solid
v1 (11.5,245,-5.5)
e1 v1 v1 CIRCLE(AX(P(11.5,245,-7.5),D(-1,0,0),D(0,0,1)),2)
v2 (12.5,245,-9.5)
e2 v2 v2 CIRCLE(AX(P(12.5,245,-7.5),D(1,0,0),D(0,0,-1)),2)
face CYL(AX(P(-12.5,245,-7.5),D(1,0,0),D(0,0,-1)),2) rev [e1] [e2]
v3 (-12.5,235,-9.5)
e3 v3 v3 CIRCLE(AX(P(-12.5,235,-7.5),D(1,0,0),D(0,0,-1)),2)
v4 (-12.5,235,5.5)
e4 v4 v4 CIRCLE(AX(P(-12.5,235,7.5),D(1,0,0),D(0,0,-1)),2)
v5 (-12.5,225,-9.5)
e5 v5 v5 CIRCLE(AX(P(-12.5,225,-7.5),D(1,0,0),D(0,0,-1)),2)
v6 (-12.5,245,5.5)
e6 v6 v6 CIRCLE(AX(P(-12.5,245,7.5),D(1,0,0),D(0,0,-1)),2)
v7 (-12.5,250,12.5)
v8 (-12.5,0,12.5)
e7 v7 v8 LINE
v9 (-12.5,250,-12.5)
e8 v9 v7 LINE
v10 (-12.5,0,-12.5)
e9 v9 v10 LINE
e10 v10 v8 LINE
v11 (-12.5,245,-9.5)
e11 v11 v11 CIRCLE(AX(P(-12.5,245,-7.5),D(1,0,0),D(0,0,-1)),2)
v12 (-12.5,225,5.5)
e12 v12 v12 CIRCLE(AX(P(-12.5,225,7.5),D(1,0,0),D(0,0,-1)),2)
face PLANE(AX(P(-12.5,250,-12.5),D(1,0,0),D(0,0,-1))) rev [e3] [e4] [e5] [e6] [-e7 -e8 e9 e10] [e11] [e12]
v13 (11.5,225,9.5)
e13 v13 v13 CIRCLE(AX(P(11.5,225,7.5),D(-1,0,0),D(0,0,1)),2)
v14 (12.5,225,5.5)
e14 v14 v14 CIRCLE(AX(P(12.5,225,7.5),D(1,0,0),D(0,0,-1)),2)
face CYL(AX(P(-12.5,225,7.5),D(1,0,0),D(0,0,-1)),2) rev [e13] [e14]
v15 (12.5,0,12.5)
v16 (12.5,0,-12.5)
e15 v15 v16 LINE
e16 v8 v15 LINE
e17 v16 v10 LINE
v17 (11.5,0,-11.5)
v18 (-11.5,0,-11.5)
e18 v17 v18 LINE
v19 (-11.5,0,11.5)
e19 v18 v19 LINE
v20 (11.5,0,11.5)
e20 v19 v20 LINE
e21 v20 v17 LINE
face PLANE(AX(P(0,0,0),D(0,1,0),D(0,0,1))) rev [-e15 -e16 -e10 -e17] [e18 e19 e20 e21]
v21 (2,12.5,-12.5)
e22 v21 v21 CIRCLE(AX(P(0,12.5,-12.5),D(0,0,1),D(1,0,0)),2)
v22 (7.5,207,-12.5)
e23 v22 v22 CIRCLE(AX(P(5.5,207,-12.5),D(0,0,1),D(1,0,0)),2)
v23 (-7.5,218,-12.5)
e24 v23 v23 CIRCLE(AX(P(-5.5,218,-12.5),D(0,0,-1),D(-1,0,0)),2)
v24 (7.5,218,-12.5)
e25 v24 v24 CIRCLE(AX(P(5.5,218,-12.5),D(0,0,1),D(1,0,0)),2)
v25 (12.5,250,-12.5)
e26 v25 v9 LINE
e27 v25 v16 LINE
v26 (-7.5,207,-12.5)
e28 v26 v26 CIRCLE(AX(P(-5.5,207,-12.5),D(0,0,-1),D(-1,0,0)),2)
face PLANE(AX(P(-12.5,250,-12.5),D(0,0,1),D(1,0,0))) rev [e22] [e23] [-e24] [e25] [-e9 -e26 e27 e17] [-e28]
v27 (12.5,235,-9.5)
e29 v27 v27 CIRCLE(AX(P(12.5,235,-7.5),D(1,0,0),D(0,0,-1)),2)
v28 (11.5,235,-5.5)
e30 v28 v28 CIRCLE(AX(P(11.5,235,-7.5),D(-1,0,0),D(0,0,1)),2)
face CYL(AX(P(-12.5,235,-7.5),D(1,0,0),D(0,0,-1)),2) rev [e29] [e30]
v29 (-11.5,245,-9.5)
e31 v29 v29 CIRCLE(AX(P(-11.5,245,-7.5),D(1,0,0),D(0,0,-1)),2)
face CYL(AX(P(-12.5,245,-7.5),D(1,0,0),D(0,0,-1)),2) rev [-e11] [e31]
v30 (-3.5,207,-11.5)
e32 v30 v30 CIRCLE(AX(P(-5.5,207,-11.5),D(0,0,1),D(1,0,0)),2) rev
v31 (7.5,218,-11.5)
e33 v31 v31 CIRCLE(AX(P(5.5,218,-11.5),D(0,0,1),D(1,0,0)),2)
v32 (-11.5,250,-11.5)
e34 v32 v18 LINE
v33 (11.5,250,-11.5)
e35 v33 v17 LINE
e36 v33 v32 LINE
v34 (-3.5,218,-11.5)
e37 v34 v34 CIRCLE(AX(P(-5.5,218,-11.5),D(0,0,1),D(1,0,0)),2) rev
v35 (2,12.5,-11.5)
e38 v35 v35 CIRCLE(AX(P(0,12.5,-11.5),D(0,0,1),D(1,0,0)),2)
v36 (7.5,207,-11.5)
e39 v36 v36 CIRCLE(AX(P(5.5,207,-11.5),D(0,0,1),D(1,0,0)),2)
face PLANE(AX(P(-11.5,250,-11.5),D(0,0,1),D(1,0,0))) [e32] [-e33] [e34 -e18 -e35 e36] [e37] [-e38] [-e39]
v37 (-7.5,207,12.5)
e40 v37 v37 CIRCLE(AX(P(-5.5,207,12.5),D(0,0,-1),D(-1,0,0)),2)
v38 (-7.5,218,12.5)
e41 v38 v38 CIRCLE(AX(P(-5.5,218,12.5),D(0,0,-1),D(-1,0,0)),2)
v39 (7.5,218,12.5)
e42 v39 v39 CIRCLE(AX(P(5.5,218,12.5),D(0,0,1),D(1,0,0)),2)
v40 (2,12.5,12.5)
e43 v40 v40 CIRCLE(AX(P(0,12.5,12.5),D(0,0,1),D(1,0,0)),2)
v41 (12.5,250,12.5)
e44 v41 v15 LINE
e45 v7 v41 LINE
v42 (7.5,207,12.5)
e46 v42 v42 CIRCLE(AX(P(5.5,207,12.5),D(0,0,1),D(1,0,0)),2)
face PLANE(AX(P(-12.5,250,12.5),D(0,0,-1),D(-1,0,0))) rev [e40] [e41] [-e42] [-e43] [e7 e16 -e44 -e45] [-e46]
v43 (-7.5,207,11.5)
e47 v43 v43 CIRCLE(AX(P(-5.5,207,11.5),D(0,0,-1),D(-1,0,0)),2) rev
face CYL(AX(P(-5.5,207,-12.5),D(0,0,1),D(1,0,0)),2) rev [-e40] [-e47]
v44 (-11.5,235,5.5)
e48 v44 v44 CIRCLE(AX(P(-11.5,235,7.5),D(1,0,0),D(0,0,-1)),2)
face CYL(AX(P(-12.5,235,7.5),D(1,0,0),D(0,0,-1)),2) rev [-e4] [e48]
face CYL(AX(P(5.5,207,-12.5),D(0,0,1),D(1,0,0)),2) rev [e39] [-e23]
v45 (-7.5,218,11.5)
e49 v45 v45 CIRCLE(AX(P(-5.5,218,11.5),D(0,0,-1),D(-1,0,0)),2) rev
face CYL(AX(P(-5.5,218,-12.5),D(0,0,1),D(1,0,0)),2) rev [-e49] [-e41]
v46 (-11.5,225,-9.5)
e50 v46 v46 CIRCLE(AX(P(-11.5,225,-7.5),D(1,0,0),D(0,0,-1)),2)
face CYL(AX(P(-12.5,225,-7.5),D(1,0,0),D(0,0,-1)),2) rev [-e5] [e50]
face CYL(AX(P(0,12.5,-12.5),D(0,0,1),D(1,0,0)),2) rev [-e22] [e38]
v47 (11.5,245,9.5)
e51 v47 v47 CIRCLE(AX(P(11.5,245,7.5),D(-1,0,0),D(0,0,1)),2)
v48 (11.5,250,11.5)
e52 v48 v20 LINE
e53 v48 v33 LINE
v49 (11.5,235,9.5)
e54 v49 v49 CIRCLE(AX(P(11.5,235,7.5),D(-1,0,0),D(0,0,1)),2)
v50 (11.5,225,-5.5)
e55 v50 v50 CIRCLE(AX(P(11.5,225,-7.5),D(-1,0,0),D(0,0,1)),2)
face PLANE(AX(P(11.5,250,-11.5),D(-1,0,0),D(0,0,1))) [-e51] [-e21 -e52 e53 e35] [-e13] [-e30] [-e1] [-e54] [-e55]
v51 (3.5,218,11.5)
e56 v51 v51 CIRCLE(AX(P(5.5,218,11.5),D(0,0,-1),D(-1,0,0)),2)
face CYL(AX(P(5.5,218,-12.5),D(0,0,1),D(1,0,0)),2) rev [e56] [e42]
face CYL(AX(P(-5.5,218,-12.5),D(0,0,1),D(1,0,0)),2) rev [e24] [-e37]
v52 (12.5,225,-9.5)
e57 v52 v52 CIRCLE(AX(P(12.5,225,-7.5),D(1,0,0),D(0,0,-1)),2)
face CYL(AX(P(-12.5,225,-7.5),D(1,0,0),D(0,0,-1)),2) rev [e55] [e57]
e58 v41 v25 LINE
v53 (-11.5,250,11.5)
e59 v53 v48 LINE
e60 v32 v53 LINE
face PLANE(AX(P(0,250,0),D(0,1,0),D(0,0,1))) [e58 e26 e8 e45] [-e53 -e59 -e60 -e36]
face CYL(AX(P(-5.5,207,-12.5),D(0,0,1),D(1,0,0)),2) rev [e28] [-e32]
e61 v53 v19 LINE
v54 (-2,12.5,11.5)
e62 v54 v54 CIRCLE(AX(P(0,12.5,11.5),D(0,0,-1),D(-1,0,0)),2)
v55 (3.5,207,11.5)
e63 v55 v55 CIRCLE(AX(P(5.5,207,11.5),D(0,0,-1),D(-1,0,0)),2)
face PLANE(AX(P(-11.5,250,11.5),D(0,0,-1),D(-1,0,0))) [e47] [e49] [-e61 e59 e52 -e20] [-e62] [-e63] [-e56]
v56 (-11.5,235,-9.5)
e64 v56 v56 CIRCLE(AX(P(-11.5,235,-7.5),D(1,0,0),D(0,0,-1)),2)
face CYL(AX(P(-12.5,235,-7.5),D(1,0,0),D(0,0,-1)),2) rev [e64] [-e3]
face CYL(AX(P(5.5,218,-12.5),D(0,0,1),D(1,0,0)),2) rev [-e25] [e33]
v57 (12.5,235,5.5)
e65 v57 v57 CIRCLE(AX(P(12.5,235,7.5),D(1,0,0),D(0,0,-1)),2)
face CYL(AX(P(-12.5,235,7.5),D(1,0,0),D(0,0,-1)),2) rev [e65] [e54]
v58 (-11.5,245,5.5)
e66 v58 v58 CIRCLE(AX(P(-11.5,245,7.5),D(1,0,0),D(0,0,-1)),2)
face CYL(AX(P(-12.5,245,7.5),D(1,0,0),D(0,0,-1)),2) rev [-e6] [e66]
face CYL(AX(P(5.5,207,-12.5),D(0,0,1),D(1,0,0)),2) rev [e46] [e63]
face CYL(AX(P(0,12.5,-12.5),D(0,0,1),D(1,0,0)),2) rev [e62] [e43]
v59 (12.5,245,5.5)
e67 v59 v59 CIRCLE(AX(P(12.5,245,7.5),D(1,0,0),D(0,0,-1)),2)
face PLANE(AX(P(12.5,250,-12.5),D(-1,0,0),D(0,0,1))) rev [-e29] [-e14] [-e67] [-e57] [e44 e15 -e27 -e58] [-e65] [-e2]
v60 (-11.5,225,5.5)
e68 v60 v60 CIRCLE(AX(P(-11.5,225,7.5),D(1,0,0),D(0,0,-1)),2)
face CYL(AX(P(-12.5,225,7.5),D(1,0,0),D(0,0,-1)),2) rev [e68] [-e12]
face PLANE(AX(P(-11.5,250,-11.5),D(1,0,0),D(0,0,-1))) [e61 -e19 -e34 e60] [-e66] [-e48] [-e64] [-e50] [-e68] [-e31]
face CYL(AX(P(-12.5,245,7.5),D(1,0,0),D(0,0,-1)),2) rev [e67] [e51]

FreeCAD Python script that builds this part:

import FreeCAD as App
import Part
import Sketcher
from FreeCAD import Vector


def add_polygon(sketch, points):
    """Adds a closed chain of lines whose ends are joined by coincident constraints."""
    first, n = sketch.GeometryCount, len(points)
    for a, b in zip(points, points[1:] + points[:1]):
        sketch.addGeometry(Part.LineSegment(App.Vector(*a, 0), App.Vector(*b, 0)), False)
    for i in range(n):
        sketch.addConstraint(Sketcher.Constraint("Coincident", first + i, 2, first + (i + 1) % n, 1))

doc = App.newDocument("Part")
params = doc.addObject("Spreadsheet::Sheet", "Params")
for row, (alias, value) in enumerate([
    ("sketch1_width", "25 mm"),
    ("sketch1_width2", "23 mm"),
    ("pad1_length", "250 mm"),
    ("sketch2_diameter", "4 mm"),
    ("pocket1_length", "25 mm"),
    ("sketch3_diameter", "4 mm"),
    ("pocket2_length", "25 mm"),
    ("sketch4_diameter", "4 mm"),
    ("pocket3_length", "25 mm"),
], start=1):
    params.set(f"A{row}", alias)
    params.set(f"B{row}", "=" + value)
    params.setAlias(f"B{row}", alias)

body = doc.addObject("PartDesign::Body", "Body")

sketch1 = doc.addObject("Sketcher::SketchObject", "Sketch")
body.addObject(sketch1)
sketch1.AttachmentSupport = (doc.XZ_Plane, [""])
sketch1.MapMode = "FlatFace"
add_polygon(sketch1, [(-12, -12), (-12, 12), (12, 12), (12, -12)])
add_polygon(sketch1, [(12, 12), (-12, 12), (-12, -12), (12, -12)])
sketch1.addConstraint(Sketcher.Constraint("Vertical", 0))
sketch1.addConstraint(Sketcher.Constraint("Horizontal", 1))
sketch1.addConstraint(Sketcher.Constraint("Vertical", 2))
sketch1.addConstraint(Sketcher.Constraint("Horizontal", 3))
sketch1.addConstraint(Sketcher.Constraint("Horizontal", 4))
sketch1.addConstraint(Sketcher.Constraint("Vertical", 5))
sketch1.addConstraint(Sketcher.Constraint("Horizontal", 6))
sketch1.addConstraint(Sketcher.Constraint("Vertical", 7))
sketch1.addConstraint(Sketcher.Constraint("Symmetric", 0, 2, 2, 2, -1, 1))
sketch1.addConstraint(Sketcher.Constraint("Symmetric", 4, 2, 6, 2, -1, 1))
sketch1.addConstraint(Sketcher.Constraint("Equal", 3, 0))
sketch1.addConstraint(Sketcher.Constraint("Equal", 6, 5))
sketch1.addConstraint(Sketcher.Constraint("DistanceX", 1, 1, 1, 2, 25.0))
sketch1.addConstraint(Sketcher.Constraint("DistanceX", 4, 2, 4, 1, 23.0))
sketch1.setExpression("Constraints[20]", "Params.sketch1_width")
sketch1.setExpression("Constraints[21]", "Params.sketch1_width2")
pad1 = doc.addObject("PartDesign::Pad", "Pad")
body.addObject(pad1)
pad1.Profile = sketch1
pad1.setExpression("Length", "Params.pad1_length")
pad1.Reversed = True

sketch2 = doc.addObject("Sketcher::SketchObject", "Sketch001")
body.addObject(sketch2)
sketch2.AttachmentSupport = (doc.YZ_Plane, [""])
sketch2.MapMode = "FlatFace"
sketch2.AttachmentOffset = App.Placement(Vector(0, 0, 12.5), App.Rotation())
sketch2.addGeometry(Part.Circle(Vector(245, -7.5, 0), Vector(0, 0, 1), 2), False)
sketch2.addGeometry(Part.Circle(Vector(235, -7.5, 0), Vector(0, 0, 1), 2), False)
sketch2.addGeometry(Part.Circle(Vector(245, 7.5, 0), Vector(0, 0, 1), 2), False)
sketch2.addGeometry(Part.Circle(Vector(235, 7.5, 0), Vector(0, 0, 1), 2), False)
sketch2.addGeometry(Part.Circle(Vector(225, -7.5, 0), Vector(0, 0, 1), 2), False)
sketch2.addGeometry(Part.Circle(Vector(225, 7.5, 0), Vector(0, 0, 1), 2), False)
sketch2.addConstraint(Sketcher.Constraint("Equal", 0, 1))
sketch2.addConstraint(Sketcher.Constraint("Equal", 1, 2))
sketch2.addConstraint(Sketcher.Constraint("Equal", 2, 3))
sketch2.addConstraint(Sketcher.Constraint("Equal", 3, 4))
sketch2.addConstraint(Sketcher.Constraint("Equal", 4, 5))
sketch2.addConstraint(Sketcher.Constraint("Symmetric", 0, 3, 2, 3, -1))
sketch2.addConstraint(Sketcher.Constraint("Symmetric", 1, 3, 3, 3, -1))
sketch2.addConstraint(Sketcher.Constraint("Symmetric", 4, 3, 5, 3, -1))
sketch2.addConstraint(Sketcher.Constraint("Horizontal", 0, 3, 1, 3))
sketch2.addConstraint(Sketcher.Constraint("Horizontal", 1, 3, 4, 3))
sketch2.addConstraint(Sketcher.Constraint("Diameter", 0, 4.0))
sketch2.addConstraint(Sketcher.Constraint("DistanceX", -1, 1, 0, 3, 245.0))
sketch2.addConstraint(Sketcher.Constraint("DistanceX", -1, 1, 1, 3, 235.0))
sketch2.addConstraint(Sketcher.Constraint("DistanceX", -1, 1, 4, 3, 225.0))
sketch2.addConstraint(Sketcher.Constraint("DistanceY", 0, 3, 2, 3, 15.0))
sketch2.setExpression("Constraints[10]", "Params.sketch2_diameter")
pocket1 = doc.addObject("PartDesign::Pocket", "Pocket")
body.addObject(pocket1)
pocket1.Profile = sketch2
pocket1.setExpression("Length", "Params.pocket1_length")

sketch3 = doc.addObject("Sketcher::SketchObject", "Sketch002")
body.addObject(sketch3)
sketch3.AttachmentSupport = (doc.XY_Plane, [""])
sketch3.MapMode = "FlatFace"
sketch3.AttachmentOffset = App.Placement(Vector(0, 0, 12.5), App.Rotation())
sketch3.addGeometry(Part.Circle(Vector(5.5, 218, 0), Vector(0, 0, 1), 2), False)
sketch3.addGeometry(Part.Circle(Vector(5.5, 207, 0), Vector(0, 0, 1), 2), False)
sketch3.addConstraint(Sketcher.Constraint("Equal", 0, 1))
sketch3.addConstraint(Sketcher.Constraint("Vertical", 0, 3, 1, 3))
sketch3.addConstraint(Sketcher.Constraint("Diameter", 0, 4.0))
sketch3.addConstraint(Sketcher.Constraint("DistanceY", -1, 1, 0, 3, 218.0))
sketch3.addConstraint(Sketcher.Constraint("DistanceY", -1, 1, 1, 3, 207.0))
sketch3.addConstraint(Sketcher.Constraint("DistanceX", -1, 1, 0, 3, 5.5))
sketch3.setExpression("Constraints[2]", "Params.sketch3_diameter")
pocket2 = doc.addObject("PartDesign::Pocket", "Pocket001")
body.addObject(pocket2)
pocket2.Profile = sketch3
pocket2.setExpression("Length", "Params.pocket2_length")

sketch4 = doc.addObject("Sketcher::SketchObject", "Sketch003")
body.addObject(sketch4)
sketch4.AttachmentSupport = (doc.XY_Plane, [""])
sketch4.MapMode = "FlatFace"
sketch4.AttachmentOffset = App.Placement(Vector(0, 0, 12.5), App.Rotation())
sketch4.addGeometry(Part.Circle(Vector(0, 12.5, 0), Vector(0, 0, 1), 2), False)
sketch4.addConstraint(Sketcher.Constraint("PointOnObject", 0, 3, -2))
sketch4.addConstraint(Sketcher.Constraint("Diameter", 0, 4.0))
sketch4.addConstraint(Sketcher.Constraint("DistanceY", -1, 1, 0, 3, 12.5))
sketch4.setExpression("Constraints[1]", "Params.sketch4_diameter")
pocket3 = doc.addObject("PartDesign::Pocket", "Pocket002")
body.addObject(pocket3)
pocket3.Profile = sketch4
pocket3.setExpression("Length", "Params.pocket3_length")
doc.recompute()

mirrored = doc.addObject("PartDesign::Mirrored", "Mirrored")
body.addObject(mirrored)
mirrored.Originals = [pocket2]
mirrored.MirrorPlane = (doc.YZ_Plane, [""])
body.Tip = mirrored

doc.recompute()
